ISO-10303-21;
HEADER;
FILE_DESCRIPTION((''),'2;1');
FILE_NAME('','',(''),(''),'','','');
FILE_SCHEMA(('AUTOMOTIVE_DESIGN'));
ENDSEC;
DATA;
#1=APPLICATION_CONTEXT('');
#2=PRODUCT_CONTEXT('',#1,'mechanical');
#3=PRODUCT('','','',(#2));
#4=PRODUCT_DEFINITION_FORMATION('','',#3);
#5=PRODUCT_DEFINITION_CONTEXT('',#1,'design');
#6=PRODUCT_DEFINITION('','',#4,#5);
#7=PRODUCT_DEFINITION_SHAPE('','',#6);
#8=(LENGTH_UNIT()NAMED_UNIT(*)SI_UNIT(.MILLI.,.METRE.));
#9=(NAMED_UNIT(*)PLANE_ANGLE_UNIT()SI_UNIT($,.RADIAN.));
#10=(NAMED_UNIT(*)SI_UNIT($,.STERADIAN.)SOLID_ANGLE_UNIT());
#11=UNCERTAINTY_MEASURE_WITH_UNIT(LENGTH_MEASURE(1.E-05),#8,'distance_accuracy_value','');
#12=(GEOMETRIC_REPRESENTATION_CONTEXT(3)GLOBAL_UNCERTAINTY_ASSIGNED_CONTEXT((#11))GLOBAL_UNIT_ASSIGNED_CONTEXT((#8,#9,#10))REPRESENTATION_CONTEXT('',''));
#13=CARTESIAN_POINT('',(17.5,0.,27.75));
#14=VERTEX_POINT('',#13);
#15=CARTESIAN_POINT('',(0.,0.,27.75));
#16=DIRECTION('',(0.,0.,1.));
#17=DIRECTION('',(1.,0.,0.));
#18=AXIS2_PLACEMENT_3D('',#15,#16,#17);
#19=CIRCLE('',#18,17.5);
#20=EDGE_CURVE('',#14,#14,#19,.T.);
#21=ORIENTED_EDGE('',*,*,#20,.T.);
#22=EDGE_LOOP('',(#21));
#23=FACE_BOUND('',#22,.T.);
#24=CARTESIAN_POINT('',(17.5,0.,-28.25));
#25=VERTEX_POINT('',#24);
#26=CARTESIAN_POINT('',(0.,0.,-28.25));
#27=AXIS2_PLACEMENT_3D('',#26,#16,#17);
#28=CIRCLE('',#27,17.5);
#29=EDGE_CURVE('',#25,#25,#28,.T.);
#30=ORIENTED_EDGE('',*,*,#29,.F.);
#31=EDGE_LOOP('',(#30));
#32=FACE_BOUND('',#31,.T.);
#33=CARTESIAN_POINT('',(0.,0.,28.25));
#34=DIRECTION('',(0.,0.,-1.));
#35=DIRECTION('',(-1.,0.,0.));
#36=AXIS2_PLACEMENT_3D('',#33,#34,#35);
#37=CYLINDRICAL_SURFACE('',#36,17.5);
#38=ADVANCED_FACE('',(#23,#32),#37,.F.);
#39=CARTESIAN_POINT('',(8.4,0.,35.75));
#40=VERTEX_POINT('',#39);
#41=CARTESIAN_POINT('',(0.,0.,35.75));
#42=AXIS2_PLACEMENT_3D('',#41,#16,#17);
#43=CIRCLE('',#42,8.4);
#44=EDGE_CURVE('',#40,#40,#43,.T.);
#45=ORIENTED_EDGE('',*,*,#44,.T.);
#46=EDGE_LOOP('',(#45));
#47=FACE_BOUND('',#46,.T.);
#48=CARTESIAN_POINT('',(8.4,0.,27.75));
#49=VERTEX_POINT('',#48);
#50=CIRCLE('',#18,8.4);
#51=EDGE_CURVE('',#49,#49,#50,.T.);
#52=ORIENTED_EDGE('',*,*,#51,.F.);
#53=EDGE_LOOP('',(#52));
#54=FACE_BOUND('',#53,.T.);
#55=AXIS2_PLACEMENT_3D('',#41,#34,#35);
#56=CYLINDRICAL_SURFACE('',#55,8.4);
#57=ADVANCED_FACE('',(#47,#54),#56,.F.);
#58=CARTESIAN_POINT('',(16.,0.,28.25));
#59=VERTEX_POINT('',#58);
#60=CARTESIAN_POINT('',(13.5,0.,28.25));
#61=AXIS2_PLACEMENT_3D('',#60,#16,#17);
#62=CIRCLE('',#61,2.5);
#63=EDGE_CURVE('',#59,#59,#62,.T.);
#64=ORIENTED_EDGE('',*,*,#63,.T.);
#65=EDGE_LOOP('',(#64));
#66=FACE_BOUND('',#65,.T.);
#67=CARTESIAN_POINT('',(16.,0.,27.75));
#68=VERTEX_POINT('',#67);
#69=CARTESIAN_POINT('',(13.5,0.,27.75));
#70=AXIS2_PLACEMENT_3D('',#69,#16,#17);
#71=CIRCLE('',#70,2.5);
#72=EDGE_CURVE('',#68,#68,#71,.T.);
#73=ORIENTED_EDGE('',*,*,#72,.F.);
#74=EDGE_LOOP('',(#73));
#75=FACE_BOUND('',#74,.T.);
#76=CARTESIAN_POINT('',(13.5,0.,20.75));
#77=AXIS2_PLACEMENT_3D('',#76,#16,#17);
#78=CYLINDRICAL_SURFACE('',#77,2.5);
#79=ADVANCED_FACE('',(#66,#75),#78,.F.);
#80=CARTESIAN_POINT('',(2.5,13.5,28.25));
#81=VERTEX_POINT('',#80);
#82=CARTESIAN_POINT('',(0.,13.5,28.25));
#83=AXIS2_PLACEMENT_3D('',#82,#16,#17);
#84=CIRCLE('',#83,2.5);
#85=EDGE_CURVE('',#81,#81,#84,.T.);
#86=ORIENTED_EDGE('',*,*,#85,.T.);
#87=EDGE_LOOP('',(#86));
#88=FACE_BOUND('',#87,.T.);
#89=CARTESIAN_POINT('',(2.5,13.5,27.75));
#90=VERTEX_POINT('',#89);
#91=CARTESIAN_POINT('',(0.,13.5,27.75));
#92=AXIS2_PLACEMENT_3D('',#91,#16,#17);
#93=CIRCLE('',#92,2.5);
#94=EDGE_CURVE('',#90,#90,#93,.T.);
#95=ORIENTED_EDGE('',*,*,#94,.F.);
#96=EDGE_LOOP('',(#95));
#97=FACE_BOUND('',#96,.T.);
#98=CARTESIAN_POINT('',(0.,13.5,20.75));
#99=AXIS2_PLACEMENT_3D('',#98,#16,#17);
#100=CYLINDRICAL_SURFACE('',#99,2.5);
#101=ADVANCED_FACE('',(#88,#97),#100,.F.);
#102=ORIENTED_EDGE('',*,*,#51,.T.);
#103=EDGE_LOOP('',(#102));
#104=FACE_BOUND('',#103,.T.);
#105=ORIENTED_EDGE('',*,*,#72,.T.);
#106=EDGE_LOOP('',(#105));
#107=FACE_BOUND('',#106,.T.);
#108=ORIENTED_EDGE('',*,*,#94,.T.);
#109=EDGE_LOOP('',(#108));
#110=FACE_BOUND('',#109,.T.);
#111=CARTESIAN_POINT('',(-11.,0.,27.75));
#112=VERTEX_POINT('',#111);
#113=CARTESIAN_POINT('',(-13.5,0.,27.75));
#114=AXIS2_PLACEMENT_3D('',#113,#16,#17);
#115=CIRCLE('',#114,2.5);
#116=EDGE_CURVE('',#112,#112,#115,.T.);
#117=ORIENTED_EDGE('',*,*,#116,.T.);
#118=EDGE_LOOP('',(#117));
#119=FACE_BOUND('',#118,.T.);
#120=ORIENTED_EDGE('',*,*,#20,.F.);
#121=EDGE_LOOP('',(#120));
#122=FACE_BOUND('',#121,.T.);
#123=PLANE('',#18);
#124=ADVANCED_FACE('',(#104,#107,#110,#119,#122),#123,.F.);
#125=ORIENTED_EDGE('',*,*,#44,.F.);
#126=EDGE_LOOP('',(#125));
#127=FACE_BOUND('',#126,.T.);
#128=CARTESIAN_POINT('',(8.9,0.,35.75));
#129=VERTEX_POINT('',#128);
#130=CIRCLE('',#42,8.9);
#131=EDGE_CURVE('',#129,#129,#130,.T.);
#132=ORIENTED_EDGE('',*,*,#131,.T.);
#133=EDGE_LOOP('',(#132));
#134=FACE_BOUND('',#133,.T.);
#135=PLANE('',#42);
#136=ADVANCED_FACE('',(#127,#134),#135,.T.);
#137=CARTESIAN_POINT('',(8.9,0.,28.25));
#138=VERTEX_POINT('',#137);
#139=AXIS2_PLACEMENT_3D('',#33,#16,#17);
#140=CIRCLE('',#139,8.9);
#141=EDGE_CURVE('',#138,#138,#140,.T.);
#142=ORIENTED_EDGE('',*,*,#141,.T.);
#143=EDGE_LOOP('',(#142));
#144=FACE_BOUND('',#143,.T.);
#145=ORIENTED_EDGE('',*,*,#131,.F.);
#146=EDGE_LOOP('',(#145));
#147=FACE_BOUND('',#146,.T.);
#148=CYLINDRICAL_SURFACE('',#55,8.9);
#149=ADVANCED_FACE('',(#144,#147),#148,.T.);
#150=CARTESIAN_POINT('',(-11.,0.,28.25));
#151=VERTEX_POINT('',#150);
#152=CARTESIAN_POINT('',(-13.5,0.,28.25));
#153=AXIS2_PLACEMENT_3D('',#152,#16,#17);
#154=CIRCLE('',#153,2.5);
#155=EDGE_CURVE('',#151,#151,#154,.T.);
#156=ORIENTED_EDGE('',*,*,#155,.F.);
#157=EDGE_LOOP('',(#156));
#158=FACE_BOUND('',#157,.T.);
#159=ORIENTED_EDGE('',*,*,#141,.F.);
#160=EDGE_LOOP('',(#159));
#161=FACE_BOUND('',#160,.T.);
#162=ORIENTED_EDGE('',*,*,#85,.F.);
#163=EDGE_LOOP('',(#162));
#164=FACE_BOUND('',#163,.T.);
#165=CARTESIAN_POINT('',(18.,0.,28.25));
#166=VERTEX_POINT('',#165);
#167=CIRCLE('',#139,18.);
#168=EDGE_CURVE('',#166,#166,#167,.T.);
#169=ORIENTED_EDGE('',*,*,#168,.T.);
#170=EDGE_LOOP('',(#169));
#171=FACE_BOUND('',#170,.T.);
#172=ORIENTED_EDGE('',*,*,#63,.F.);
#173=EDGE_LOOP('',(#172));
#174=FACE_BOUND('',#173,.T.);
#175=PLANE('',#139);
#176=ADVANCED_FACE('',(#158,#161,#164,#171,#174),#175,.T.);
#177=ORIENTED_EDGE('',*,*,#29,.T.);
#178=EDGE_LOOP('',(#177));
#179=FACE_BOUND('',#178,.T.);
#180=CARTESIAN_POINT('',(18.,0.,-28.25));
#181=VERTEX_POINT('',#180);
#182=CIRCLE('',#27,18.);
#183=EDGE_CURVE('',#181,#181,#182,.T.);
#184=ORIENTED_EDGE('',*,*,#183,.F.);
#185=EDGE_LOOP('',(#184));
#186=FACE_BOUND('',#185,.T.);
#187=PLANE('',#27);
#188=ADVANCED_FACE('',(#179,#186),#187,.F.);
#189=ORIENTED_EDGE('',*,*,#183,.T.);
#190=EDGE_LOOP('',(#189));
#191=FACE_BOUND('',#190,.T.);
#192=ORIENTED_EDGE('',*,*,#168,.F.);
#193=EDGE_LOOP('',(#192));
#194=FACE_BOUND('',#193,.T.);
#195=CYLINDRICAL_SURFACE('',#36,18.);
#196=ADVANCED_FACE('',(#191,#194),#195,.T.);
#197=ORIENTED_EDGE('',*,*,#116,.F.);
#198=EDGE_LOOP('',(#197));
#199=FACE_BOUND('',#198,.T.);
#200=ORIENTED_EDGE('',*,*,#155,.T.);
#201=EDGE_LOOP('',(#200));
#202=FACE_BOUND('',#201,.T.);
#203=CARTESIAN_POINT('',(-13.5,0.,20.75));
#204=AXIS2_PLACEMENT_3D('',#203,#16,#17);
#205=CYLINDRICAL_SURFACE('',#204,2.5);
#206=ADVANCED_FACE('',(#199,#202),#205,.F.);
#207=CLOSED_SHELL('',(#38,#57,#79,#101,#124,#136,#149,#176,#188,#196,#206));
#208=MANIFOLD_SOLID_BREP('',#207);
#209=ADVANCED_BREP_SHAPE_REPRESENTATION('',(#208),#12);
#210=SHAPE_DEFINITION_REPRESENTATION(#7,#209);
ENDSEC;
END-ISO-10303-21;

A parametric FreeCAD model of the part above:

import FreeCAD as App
import Part
import Sketcher
from FreeCAD import Vector


def faces_at(feature, points):
    """Names of the faces that lie closest to the given points."""
    faces = feature.Shape.Faces
    near = lambda p: min(range(len(faces)), key=lambda i: faces[i].distToShape(Part.Vertex(*p))[0])
    return sorted({f"Face{near(p) + 1}" for p in points})

doc = App.newDocument("Part")
body = doc.addObject("PartDesign::Body", "Body")

# Sketch on XY plane
sketch1 = body.newObject("Sketcher::SketchObject", "Sketch")
sketch1.AttachmentSupport = (doc.getObject("XY_Plane"), [""])
sketch1.MapMode = "FlatFace"
sketch1.addGeometry(Part.Circle(Vector(0, 0, 0), Vector(0, 0, 1), 18), False)
sketch1.addConstraint(Sketcher.Constraint("Coincident", 0, 3, -1, 1))
sketch1.addConstraint(Sketcher.Constraint("Diameter", 0, 36.0))
pad1 = body.newObject("PartDesign::Pad", "Pad")
pad1.Profile = sketch1
pad1.Length = 56.5
pad1.Midplane = True

# Sketch on XY plane
sketch2 = body.newObject("Sketcher::SketchObject", "Sketch001")
sketch2.AttachmentSupport = (doc.getObject("XY_Plane"), [""])
sketch2.MapMode = "FlatFace"
sketch2.AttachmentOffset = App.Placement(Vector(0, 0, 28.25), App.Rotation())
sketch2.addGeometry(Part.Circle(Vector(0, 0, 0), Vector(0, 0, 1), 9), False)
sketch2.addConstraint(Sketcher.Constraint("Coincident", 0, 3, -1, 1))
sketch2.addConstraint(Sketcher.Constraint("Diameter", 0, 17.8))
pad2 = body.newObject("PartDesign::Pad", "Pad001")
pad2.Profile = sketch2
pad2.Length = 7.5
doc.recompute()

thickness = body.newObject("PartDesign::Thickness", "Thickness")
thickness.Base = (pad2, faces_at(pad2, [(0, 0, -28.25), (0, 0, 35.75)]))
thickness.Value = 0.5
thickness.Reversed = True
thickness.Join = "Intersection"

# Sketch on XY plane
sketch3 = body.newObject("Sketcher::SketchObject", "Sketch002")
sketch3.AttachmentSupport = (doc.getObject("XY_Plane"), [""])
sketch3.MapMode = "FlatFace"
sketch3.AttachmentOffset = App.Placement(Vector(0, 0, 28.25), App.Rotation())
sketch3.addGeometry(Part.Circle(Vector(-13.5, 0, 0), Vector(0, 0, 1), 2.5), False)
sketch3.addGeometry(Part.Circle(Vector(0, 13.5, 0), Vector(0, 0, 1), 2.5), False)
sketch3.addGeometry(Part.Circle(Vector(13.5, 0, 0), Vector(0, 0, 1), 2.5), False)
sketch3.addConstraint(Sketcher.Constraint("Equal", 0, 1))
sketch3.addConstraint(Sketcher.Constraint("Equal", 1, 2))
sketch3.addConstraint(Sketcher.Constraint("Symmetric", 0, 3, 2, 3, -1, 1))
sketch3.addConstraint(Sketcher.Constraint("PointOnObject", 0, 3, -1))
sketch3.addConstraint(Sketcher.Constraint("PointOnObject", 1, 3, -2))
sketch3.addConstraint(Sketcher.Constraint("Diameter", 0, 5.0))
sketch3.addConstraint(Sketcher.Constraint("DistanceX", 0, 3, 2, 3, 27.0))
sketch3.addConstraint(Sketcher.Constraint("DistanceY", -1, 1, 1, 3, 13.5))
pocket1 = body.newObject("PartDesign::Pocket", "Pocket")
pocket1.Profile = sketch3
pocket1.Length = 7.5

doc.recompute()
